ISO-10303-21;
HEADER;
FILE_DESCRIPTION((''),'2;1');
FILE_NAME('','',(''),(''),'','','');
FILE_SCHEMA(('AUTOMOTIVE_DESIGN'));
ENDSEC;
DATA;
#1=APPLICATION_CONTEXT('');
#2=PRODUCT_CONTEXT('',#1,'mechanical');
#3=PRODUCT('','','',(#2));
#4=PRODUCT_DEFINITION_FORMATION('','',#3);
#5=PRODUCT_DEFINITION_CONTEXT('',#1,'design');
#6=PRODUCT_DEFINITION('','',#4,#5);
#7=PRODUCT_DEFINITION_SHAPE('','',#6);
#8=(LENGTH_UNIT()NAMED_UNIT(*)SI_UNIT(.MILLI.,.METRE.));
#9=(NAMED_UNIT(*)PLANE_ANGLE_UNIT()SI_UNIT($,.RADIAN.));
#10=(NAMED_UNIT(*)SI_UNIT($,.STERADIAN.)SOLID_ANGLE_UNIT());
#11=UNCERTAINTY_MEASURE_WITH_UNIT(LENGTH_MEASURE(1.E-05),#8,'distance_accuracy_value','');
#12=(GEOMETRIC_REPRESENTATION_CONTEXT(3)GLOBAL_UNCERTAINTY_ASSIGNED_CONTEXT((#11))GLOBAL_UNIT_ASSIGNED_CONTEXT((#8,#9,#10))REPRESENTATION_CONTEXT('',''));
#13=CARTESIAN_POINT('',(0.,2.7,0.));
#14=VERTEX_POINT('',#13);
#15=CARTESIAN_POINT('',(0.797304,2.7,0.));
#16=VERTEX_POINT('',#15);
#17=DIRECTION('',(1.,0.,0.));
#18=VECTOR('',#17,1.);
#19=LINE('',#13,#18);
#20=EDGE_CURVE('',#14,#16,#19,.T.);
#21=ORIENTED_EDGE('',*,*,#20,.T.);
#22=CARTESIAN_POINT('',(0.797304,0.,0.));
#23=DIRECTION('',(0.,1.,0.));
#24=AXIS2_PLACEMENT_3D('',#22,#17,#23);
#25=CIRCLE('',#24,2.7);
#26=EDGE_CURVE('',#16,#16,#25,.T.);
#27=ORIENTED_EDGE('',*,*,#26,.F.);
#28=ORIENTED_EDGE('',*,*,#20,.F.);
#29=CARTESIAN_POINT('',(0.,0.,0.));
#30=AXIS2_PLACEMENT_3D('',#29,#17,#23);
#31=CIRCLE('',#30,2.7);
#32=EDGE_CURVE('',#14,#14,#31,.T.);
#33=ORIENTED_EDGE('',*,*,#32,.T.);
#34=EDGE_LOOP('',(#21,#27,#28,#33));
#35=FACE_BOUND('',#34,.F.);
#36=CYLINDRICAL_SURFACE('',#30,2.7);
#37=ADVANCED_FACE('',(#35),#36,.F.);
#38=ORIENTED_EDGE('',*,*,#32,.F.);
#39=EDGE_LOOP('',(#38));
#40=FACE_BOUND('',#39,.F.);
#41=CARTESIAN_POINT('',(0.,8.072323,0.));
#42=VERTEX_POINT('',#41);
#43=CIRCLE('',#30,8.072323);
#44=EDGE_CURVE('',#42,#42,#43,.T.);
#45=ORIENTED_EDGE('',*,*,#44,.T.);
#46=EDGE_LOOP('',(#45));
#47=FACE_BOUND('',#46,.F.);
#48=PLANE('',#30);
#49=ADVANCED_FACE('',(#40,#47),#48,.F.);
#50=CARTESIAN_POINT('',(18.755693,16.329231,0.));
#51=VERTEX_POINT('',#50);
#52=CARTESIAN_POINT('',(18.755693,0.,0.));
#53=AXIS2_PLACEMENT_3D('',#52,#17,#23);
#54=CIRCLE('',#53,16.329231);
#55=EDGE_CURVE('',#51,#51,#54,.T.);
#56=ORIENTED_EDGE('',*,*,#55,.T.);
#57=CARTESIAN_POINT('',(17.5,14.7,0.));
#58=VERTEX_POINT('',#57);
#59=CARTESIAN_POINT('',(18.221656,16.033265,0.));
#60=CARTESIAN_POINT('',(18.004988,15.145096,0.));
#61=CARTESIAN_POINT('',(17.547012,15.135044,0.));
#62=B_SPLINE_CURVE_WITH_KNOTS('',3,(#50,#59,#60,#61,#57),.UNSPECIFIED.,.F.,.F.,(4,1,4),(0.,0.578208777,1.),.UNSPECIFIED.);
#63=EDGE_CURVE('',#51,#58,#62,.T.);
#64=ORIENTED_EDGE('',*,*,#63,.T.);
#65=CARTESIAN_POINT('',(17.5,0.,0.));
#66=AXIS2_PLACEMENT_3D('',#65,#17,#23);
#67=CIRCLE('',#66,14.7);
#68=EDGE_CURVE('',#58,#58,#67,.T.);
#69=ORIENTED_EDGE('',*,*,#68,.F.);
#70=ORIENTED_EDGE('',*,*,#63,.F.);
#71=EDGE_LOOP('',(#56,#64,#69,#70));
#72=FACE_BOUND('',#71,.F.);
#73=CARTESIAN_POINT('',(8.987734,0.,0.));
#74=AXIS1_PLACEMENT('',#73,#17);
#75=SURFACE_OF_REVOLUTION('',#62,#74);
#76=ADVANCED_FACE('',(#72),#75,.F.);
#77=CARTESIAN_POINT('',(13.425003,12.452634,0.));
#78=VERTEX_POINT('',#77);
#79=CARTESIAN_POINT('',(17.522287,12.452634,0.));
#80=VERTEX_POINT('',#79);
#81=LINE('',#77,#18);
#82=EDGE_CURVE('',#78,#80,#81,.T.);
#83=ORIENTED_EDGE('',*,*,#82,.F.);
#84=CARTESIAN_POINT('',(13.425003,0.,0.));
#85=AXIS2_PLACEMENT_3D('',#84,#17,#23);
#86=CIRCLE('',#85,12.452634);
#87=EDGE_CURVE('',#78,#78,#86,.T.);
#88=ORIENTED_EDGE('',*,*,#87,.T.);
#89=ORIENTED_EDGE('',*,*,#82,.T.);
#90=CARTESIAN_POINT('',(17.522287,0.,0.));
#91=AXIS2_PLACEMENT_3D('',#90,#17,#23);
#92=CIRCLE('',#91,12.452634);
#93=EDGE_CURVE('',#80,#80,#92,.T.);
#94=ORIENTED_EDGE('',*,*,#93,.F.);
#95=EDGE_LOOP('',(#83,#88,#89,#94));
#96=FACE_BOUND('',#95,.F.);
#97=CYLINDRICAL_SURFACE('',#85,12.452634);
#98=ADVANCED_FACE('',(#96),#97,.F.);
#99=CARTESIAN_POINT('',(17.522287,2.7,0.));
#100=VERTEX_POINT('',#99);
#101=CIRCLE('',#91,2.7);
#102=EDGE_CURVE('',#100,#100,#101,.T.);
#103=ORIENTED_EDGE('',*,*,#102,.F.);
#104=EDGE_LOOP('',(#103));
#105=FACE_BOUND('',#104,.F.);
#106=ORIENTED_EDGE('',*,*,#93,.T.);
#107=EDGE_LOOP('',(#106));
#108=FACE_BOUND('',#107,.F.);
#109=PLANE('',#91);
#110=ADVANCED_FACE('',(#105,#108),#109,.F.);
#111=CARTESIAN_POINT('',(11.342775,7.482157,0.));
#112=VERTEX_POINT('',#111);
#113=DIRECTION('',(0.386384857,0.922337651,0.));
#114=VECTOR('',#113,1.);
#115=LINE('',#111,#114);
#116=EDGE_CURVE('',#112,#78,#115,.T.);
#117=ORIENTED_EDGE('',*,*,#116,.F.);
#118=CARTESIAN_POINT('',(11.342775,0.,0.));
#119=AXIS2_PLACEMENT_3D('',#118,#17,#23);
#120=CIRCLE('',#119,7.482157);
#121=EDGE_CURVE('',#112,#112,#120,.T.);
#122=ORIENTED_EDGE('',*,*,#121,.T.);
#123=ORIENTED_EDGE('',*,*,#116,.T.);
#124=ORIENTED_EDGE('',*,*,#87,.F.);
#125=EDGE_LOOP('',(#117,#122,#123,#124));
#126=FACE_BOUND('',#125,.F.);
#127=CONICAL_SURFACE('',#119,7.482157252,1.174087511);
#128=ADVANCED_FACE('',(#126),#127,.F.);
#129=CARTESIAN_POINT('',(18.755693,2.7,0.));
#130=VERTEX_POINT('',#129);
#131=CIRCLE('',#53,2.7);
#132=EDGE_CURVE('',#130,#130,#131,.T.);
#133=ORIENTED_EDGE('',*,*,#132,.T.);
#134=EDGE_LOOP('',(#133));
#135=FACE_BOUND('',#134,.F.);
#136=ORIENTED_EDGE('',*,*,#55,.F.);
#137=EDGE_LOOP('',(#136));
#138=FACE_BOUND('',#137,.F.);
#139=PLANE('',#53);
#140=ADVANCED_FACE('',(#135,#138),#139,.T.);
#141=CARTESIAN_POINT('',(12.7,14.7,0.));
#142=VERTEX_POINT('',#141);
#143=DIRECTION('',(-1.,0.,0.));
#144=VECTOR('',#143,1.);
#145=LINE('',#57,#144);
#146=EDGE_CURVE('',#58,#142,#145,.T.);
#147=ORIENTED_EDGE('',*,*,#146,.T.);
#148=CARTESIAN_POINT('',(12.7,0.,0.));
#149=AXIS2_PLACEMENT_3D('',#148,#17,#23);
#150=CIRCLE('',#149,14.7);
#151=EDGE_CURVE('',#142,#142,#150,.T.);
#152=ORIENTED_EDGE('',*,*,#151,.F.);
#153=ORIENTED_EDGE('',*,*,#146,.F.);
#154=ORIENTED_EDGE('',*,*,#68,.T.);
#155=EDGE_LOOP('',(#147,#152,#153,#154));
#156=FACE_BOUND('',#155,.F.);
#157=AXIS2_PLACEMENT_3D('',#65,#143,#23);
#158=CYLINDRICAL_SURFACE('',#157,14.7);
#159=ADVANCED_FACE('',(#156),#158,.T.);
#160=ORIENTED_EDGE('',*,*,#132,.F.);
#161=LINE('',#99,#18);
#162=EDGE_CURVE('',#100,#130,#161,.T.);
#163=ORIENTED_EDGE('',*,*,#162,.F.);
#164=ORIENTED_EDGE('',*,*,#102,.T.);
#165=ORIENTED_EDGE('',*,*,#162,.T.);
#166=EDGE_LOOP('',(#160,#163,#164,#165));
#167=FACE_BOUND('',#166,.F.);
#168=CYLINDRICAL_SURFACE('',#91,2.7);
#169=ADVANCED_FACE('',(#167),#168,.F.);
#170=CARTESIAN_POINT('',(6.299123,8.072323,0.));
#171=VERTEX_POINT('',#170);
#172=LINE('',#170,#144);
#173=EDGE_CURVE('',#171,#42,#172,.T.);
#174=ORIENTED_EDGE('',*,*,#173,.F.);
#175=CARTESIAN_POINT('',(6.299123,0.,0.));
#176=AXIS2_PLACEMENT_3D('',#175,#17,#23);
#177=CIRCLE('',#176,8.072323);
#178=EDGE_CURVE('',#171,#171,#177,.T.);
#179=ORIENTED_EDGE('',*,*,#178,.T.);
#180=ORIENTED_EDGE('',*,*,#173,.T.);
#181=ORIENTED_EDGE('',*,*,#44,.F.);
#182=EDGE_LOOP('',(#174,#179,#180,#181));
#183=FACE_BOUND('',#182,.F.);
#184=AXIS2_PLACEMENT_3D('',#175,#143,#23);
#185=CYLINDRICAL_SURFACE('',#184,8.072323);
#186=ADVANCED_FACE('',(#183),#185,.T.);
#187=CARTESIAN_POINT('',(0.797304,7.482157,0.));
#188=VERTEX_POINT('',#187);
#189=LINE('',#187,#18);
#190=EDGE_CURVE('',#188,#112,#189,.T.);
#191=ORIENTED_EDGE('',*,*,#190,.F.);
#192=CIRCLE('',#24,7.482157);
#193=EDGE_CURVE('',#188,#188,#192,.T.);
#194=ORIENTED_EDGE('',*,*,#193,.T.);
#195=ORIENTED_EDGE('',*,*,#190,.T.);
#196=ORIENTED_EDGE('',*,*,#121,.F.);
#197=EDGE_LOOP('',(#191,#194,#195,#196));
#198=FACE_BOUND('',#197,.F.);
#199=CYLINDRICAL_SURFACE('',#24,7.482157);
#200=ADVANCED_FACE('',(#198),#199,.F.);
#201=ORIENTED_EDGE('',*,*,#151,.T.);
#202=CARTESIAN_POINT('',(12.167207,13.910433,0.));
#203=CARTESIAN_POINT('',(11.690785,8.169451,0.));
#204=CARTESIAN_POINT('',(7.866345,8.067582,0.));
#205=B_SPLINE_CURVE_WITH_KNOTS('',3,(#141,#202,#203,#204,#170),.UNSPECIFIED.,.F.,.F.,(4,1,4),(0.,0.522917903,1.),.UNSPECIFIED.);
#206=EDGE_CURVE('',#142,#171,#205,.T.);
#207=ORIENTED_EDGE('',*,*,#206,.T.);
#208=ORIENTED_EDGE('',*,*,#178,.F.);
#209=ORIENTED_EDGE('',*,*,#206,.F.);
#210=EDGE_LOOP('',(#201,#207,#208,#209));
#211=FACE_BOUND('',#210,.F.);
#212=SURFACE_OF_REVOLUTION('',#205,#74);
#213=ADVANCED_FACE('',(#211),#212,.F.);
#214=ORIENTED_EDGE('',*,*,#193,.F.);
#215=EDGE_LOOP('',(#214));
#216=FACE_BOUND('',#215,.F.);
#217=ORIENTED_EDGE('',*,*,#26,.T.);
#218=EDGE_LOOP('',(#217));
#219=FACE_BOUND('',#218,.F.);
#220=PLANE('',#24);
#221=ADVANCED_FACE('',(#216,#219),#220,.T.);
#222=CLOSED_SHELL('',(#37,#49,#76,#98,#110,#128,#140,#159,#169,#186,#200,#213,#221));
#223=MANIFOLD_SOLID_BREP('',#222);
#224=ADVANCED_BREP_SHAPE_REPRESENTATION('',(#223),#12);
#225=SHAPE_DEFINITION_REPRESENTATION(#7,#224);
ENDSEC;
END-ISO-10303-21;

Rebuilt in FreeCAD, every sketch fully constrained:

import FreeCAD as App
import Part
import Sketcher

V = App.Vector

doc = App.newDocument("Part")
params = doc.addObject("Spreadsheet::Sheet", "Params")
for row, (alias, value) in enumerate([
    ("revolution_angle", "360 deg"),
], start=1):
    params.set(f"A{row}", alias)
    params.set(f"B{row}", "=" + value)
    params.setAlias(f"B{row}", alias)

body = doc.addObject("PartDesign::Body", "Body")

# Sketch on XY plane
sketch1 = body.newObject("Sketcher::SketchObject", "Sketch")
sketch1.AttachmentSupport = (doc.getObject("XY_Plane"), [""])
sketch1.MapMode = "FlatFace"
sketch1.addGeometry(Part.LineSegment(V(6.299123, 8.072323, 0), V(0, 8.072323, 0)), False)
sketch1.addGeometry(Part.LineSegment(V(0, 8.072323, 0), V(0, 2.7, 0)), False)
sketch1.addGeometry(Part.LineSegment(V(0, 2.7, 0), V(0.797304, 2.7, 0)), False)
sketch1.addGeometry(Part.LineSegment(V(0.797304, 2.7, 0), V(0.797304, 7.482157, 0)), False)
sketch1.addGeometry(Part.LineSegment(V(0.797304, 7.482157, 0), V(11.342775, 7.482157, 0)), False)
sketch1.addGeometry(Part.LineSegment(V(11.342775, 7.482157, 0), V(13.425003, 12.452634, 0)), False)
sketch1.addGeometry(Part.LineSegment(V(13.425003, 12.452634, 0), V(17.522287, 12.452634, 0)), False)
sketch1.addGeometry(Part.LineSegment(V(17.522287, 12.452634, 0), V(17.522287, 2.7, 0)), False)
sketch1.addGeometry(Part.LineSegment(V(17.522287, 2.7, 0), V(18.755693, 2.7, 0)), False)
sketch1.addGeometry(Part.LineSegment(V(18.755693, 2.7, 0), V(18.755693, 16.329231, 0)), False)
sketch1.addGeometry(Part.BSplineCurve([V(18.755693, 16.329231, 0), V(18.221656, 16.033265, 0), V(18.004988, 15.145096, 0), V(17.547012, 15.135044, 0), V(17.5, 14.7, 0)], [4, 1, 4], [0, 0.578208777, 1], False, 3, [1, 1, 1, 1, 1], False), False)
sketch1.addGeometry(Part.LineSegment(V(17.5, 14.7, 0), V(12.7, 14.7, 0)), False)
sketch1.addGeometry(Part.BSplineCurve([V(12.7, 14.7, 0), V(12.167207, 13.910433, 0), V(11.690785, 8.169451, 0), V(7.866345, 8.067582, 0), V(6.299123, 8.072323, 0)], [4, 1, 4], [0, 0.522917903, 1], False, 3, [1, 1, 1, 1, 1], False), False)
sketch1.addConstraint(Sketcher.Constraint("Block", 10))
sketch1.addConstraint(Sketcher.Constraint("Block", 12))
sketch1.addConstraint(Sketcher.Constraint("Coincident", 0, 2, 1, 1))
sketch1.addConstraint(Sketcher.Constraint("Coincident", 1, 2, 2, 1))
sketch1.addConstraint(Sketcher.Constraint("Coincident", 2, 2, 3, 1))
sketch1.addConstraint(Sketcher.Constraint("Coincident", 3, 2, 4, 1))
sketch1.addConstraint(Sketcher.Constraint("Coincident", 4, 2, 5, 1))
sketch1.addConstraint(Sketcher.Constraint("Coincident", 5, 2, 6, 1))
sketch1.addConstraint(Sketcher.Constraint("Coincident", 6, 2, 7, 1))
sketch1.addConstraint(Sketcher.Constraint("Coincident", 7, 2, 8, 1))
sketch1.addConstraint(Sketcher.Constraint("Coincident", 8, 2, 9, 1))
sketch1.addConstraint(Sketcher.Constraint("Coincident", 9, 2, 10, 1))
sketch1.addConstraint(Sketcher.Constraint("Coincident", 10, 2, 11, 1))
sketch1.addConstraint(Sketcher.Constraint("Coincident", 11, 2, 12, 1))
sketch1.addConstraint(Sketcher.Constraint("Coincident", 12, 2, 0, 1))
sketch1.addConstraint(Sketcher.Constraint("Horizontal", 0))
sketch1.addConstraint(Sketcher.Constraint("Vertical", 1))
sketch1.addConstraint(Sketcher.Constraint("Horizontal", 2))
sketch1.addConstraint(Sketcher.Constraint("Vertical", 3))
sketch1.addConstraint(Sketcher.Constraint("Horizontal", 4))
sketch1.addConstraint(Sketcher.Constraint("Horizontal", 6))
sketch1.addConstraint(Sketcher.Constraint("Vertical", 7))
sketch1.addConstraint(Sketcher.Constraint("Horizontal", 8))
sketch1.addConstraint(Sketcher.Constraint("Vertical", 9))
sketch1.addConstraint(Sketcher.Constraint("PointOnObject", 0, 2, -2))
sketch1.addConstraint(Sketcher.Constraint("Horizontal", 2, 2, 7, 2))
sketch1.addConstraint(Sketcher.Constraint("DistanceY", 7, 2, 11, 2, 12.0))
sketch1.addConstraint(Sketcher.Constraint("Distance", 5, 5.388999))
sketch1.addConstraint(Sketcher.Constraint("DistanceX", 4, 1, 4, 2, 10.545471))
sketch1.addConstraint(Sketcher.Constraint("DistanceX", 3, 2, 5, 2, 12.627699))
sketch1.addConstraint(Sketcher.Constraint("DistanceX", 2, 1, 2, 2, 0.797304))
sketch1.addConstraint(Sketcher.Constraint("DistanceX", 6, 1, 6, 2, 4.097284))
sketch1.addConstraint(Sketcher.Constraint("DistanceY", 3, 1, 3, 2, 4.782157))
revolution = body.newObject("PartDesign::Revolution", "Revolution")
revolution.Profile = sketch1
revolution.ReferenceAxis = (sketch1, ["H_Axis"])
revolution.setExpression("Angle", "Params.revolution_angle")

doc.recompute()
